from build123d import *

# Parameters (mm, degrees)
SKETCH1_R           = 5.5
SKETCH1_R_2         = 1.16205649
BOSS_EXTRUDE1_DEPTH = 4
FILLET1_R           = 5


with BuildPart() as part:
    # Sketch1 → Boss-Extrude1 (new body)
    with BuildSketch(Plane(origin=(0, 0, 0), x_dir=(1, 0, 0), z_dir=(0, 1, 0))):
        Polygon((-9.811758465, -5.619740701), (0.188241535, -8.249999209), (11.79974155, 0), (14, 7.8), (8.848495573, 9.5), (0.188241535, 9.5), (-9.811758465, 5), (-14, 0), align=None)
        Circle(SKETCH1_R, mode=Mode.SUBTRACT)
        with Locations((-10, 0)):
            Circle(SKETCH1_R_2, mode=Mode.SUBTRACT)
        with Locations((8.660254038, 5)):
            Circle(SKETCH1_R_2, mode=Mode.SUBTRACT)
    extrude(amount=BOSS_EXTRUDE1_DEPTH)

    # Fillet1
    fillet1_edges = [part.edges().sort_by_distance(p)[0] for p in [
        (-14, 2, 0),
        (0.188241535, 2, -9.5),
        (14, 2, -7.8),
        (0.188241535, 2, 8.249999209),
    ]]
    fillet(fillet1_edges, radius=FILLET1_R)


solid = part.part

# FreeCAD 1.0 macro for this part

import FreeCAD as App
import Part
import Sketcher


def edges_at(feature, points):
    """Names of the edges that pass closest to the given points."""
    edges = feature.Shape.Edges
    near = lambda p: min(range(len(edges)), key=lambda i: edges[i].distToShape(Part.Vertex(*p))[0])
    return sorted({f"Edge{near(p) + 1}" for p in points})


def add_polygon(sketch, points):
    """Adds a closed chain of lines whose ends are joined by coincident constraints."""
    first, n = sketch.GeometryCount, len(points)
    for a, b in zip(points, points[1:] + points[:1]):
        sketch.addGeometry(Part.LineSegment(App.Vector(*a, 0), App.Vector(*b, 0)), False)
    for i in range(n):
        sketch.addConstraint(Sketcher.Constraint("Coincident", first + i, 2, first + (i + 1) % n, 1))

doc = App.newDocument("Part")
params = doc.addObject("Spreadsheet::Sheet", "Params")
for row, (alias, value) in enumerate([
    ("sketch1_diameter", "11 mm"),
    ("pad1_length", "4 mm"),
    ("fillet_radius", "5 mm"),
], start=1):
    params.set(f"A{row}", alias)
    params.set(f"B{row}", "=" + value)
    params.setAlias(f"B{row}", alias)

body = doc.addObject("PartDesign::Body", "Body")

# Sketch on XZ plane
sketch1 = body.newObject("Sketcher::SketchObject", "Sketch")
sketch1.AttachmentSupport = (doc.getObject("XZ_Plane"), [""])
sketch1.MapMode = "FlatFace"
add_polygon(sketch1, [(-9.8, 5.6), (0.2, 8.2), (11.8, 0), (14, -7.8), (8.8, -9.5), (0.2, -9.5), (-9.8, -5), (-14, 0)])  # lines 0-7
sketch1.addGeometry(Part.Circle(App.Vector(-10, 0, 0), App.Vector(0, 0, 1), 1.2), False)  # 8
sketch1.addGeometry(Part.Circle(App.Vector(0, 0, 0), App.Vector(0, 0, 1), 5.5), False)  # 9
sketch1.addGeometry(Part.Circle(App.Vector(8.7, -5, 0), App.Vector(0, 0, 1), 1.2), False)  # 10
sketch1.addConstraint([
    Sketcher.Constraint("Horizontal", 4),
    Sketcher.Constraint("Coincident", 9, 3, -1, 1),
    Sketcher.Constraint("Equal", 8, 10),
    Sketcher.Constraint("PointOnObject", 8, 3, -1),
    Sketcher.Constraint("PointOnObject", 1, 2, -1),
    Sketcher.Constraint("PointOnObject", 6, 2, -1),
    Sketcher.Constraint("Horizontal", 10, 3, 5, 2),
    Sketcher.Constraint("Vertical", 0, 2, 4, 2),
    Sketcher.Constraint("Vertical", 5, 2, 7, 2),
    Sketcher.Constraint("Diameter", 9, 11.0),
    Sketcher.Constraint("DistanceX", 8, 3, -1, 1, 10.0),
    Sketcher.Constraint("DistanceY", 10, 3, -1, 1, 5.0),
    Sketcher.Constraint("DistanceX", -1, 1, 2, 2, 14.0),
    Sketcher.Constraint("DistanceX", 6, 2, -1, 1, 14.0),
    Sketcher.Constraint("DistanceX", 5, 2, 4, 2, 10.0),
    Sketcher.Constraint("DistanceY", 2, 2, -1, 1, 7.8),
    Sketcher.Constraint("DistanceY", 3, 2, -1, 1, 9.5),
    Sketcher.Constraint("DistanceY", -1, 1, 0, 2, 8.249999),
    Sketcher.Constraint("Diameter", 8, 2.324113),
    Sketcher.Constraint("DistanceX", 0, 2, 1, 2, 11.6115),
    Sketcher.Constraint("Distance", 0, 10.340129),
    Sketcher.Constraint("Distance", 2, 8.10439),
    Sketcher.Constraint("DistanceX", 4, 2, 4, 1, 8.660254),
    Sketcher.Constraint("DistanceX", 10, 3, 3, 2, 0.188242),
])
sketch1.setExpression("Constraints[17]", "Params.sketch1_diameter")
pad1 = body.newObject("PartDesign::Pad", "Pad")
pad1.Profile = sketch1
pad1.setExpression("Length", "Params.pad1_length")
pad1.Reversed = True
doc.recompute()

fillet = body.newObject("PartDesign::Fillet", "Fillet")
fillet.Base = (pad1, edges_at(pad1, [
    (-14, 2, 0),
    (0.188, 2, -9.5),
    (14, 2, -7.8),
    (0.188, 2, 8.25),
]))
fillet.setExpression("Radius", "Params.fillet_radius")

doc.recompute()
